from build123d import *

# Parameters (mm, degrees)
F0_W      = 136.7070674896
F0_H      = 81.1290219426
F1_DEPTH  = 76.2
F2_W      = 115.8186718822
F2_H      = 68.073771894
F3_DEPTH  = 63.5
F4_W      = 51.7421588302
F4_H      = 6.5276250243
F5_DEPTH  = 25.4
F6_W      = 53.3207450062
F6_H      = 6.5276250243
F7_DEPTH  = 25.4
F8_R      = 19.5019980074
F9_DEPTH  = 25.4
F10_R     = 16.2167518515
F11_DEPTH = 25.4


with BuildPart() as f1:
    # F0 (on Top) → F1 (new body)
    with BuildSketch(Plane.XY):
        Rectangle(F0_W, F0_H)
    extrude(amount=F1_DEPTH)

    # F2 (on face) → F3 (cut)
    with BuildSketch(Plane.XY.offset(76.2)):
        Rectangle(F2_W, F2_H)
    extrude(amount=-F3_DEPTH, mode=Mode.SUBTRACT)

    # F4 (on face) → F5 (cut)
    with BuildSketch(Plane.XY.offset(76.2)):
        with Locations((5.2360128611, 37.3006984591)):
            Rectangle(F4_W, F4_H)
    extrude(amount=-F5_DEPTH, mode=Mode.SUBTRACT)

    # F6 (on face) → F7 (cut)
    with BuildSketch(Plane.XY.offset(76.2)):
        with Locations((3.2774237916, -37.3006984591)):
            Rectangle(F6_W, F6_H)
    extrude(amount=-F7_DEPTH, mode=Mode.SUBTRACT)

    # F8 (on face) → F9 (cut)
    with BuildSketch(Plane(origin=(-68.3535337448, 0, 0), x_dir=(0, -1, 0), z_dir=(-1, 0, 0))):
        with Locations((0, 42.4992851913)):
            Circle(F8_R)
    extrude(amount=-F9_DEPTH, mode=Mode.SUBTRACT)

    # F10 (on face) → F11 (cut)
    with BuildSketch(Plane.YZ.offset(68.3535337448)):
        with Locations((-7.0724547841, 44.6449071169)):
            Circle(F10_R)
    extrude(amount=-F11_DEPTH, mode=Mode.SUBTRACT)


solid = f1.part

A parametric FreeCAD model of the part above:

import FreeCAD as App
import Part
import Sketcher
Q = App.Units.Quantity

doc = App.newDocument("Part")
params = doc.addObject("Spreadsheet::Sheet", "Params")
for row, (alias, value) in enumerate([
    ("pad1_length", "3 in"),
    ("pocket1_length", "2.5 in"),
    ("pocket2_length", "1 in"),
    ("pocket3_length", "1 in"),
    ("pocket4_length", "1 in"),
    ("pocket5_length", "1 in"),
], start=1):
    params.set(f"A{row}", alias)
    params.set(f"B{row}", "=" + value)
    params.setAlias(f"B{row}", alias)

body = doc.addObject("PartDesign::Body", "Body")

# Sketch on XY plane
sketch1 = doc.addObject("Sketcher::SketchObject", "Sketch")
body.addObject(sketch1)
sketch1.AttachmentSupport = (doc.XY_Plane, [""])
sketch1.MapMode = "FlatFace"
sketch1.addGeometry(Part.LineSegment(App.Vector(-68, 41, 0), App.Vector(-68, -41, 0)), False)
sketch1.addGeometry(Part.LineSegment(App.Vector(-68, -41, 0), App.Vector(68, -41, 0)), False)
sketch1.addGeometry(Part.LineSegment(App.Vector(68, -41, 0), App.Vector(68, 41, 0)), False)
sketch1.addGeometry(Part.LineSegment(App.Vector(68, 41, 0), App.Vector(-68, 41, 0)), False)
sketch1.addConstraint(Sketcher.Constraint("Coincident", 0, 2, 1, 1))
sketch1.addConstraint(Sketcher.Constraint("Coincident", 1, 2, 2, 1))
sketch1.addConstraint(Sketcher.Constraint("Coincident", 2, 2, 3, 1))
sketch1.addConstraint(Sketcher.Constraint("Coincident", 3, 2, 0, 1))
sketch1.addConstraint(Sketcher.Constraint("Vertical", 0))
sketch1.addConstraint(Sketcher.Constraint("Horizontal", 1))
sketch1.addConstraint(Sketcher.Constraint("Vertical", 2))
sketch1.addConstraint(Sketcher.Constraint("Horizontal", 3))
sketch1.addConstraint(Sketcher.Constraint("Symmetric", 0, 2, 2, 2, -1, 1))
sketch1.addConstraint(Sketcher.Constraint("DistanceY", 0, 2, 0, 1, Q("81.129022 mm")))
sketch1.addConstraint(Sketcher.Constraint("DistanceX", 1, 1, 1, 2, Q("136.707067 mm")))
pad1 = doc.addObject("PartDesign::Pad", "Pad")
body.addObject(pad1)
pad1.Profile = sketch1
pad1.setExpression("Length", "Params.pad1_length")

# Sketch on XY plane
sketch2 = doc.addObject("Sketcher::SketchObject", "Sketch001")
body.addObject(sketch2)
sketch2.AttachmentSupport = (doc.XY_Plane, [""])
sketch2.MapMode = "FlatFace"
sketch2.AttachmentOffset = App.Placement(App.Vector(0, 0, 3 * 25.4), App.Rotation())
sketch2.addGeometry(Part.LineSegment(App.Vector(-58, 34, 0), App.Vector(-58, -34, 0)), False)
sketch2.addGeometry(Part.LineSegment(App.Vector(-58, -34, 0), App.Vector(58, -34, 0)), False)
sketch2.addGeometry(Part.LineSegment(App.Vector(58, -34, 0), App.Vector(58, 34, 0)), False)
sketch2.addGeometry(Part.LineSegment(App.Vector(58, 34, 0), App.Vector(-58, 34, 0)), False)
sketch2.addConstraint(Sketcher.Constraint("Coincident", 0, 2, 1, 1))
sketch2.addConstraint(Sketcher.Constraint("Coincident", 1, 2, 2, 1))
sketch2.addConstraint(Sketcher.Constraint("Coincident", 2, 2, 3, 1))
sketch2.addConstraint(Sketcher.Constraint("Coincident", 3, 2, 0, 1))
sketch2.addConstraint(Sketcher.Constraint("Vertical", 0))
sketch2.addConstraint(Sketcher.Constraint("Horizontal", 1))
sketch2.addConstraint(Sketcher.Constraint("Vertical", 2))
sketch2.addConstraint(Sketcher.Constraint("Horizontal", 3))
sketch2.addConstraint(Sketcher.Constraint("Symmetric", 0, 2, 2, 2, -1, 1))
sketch2.addConstraint(Sketcher.Constraint("DistanceX", 1, 1, 1, 2, Q("115.818672 mm")))
sketch2.addConstraint(Sketcher.Constraint("DistanceY", 0, 2, 0, 1, Q("68.073772 mm")))
pocket1 = doc.addObject("PartDesign::Pocket", "Pocket")
body.addObject(pocket1)
pocket1.Profile = sketch2
pocket1.setExpression("Length", "Params.pocket1_length")

# Sketch on XY plane
sketch3 = doc.addObject("Sketcher::SketchObject", "Sketch002")
body.addObject(sketch3)
sketch3.AttachmentSupport = (doc.XY_Plane, [""])
sketch3.MapMode = "FlatFace"
sketch3.AttachmentOffset = App.Placement(App.Vector(0, 0, 3 * 25.4), App.Rotation())
sketch3.addGeometry(Part.LineSegment(App.Vector(-21, 41, 0), App.Vector(-21, 34, 0)), False)
sketch3.addGeometry(Part.LineSegment(App.Vector(-21, 34, 0), App.Vector(31, 34, 0)), False)
sketch3.addGeometry(Part.LineSegment(App.Vector(31, 34, 0), App.Vector(31, 41, 0)), False)
sketch3.addGeometry(Part.LineSegment(App.Vector(31, 41, 0), App.Vector(-21, 41, 0)), False)
sketch3.addConstraint(Sketcher.Constraint("Coincident", 0, 2, 1, 1))
sketch3.addConstraint(Sketcher.Constraint("Coincident", 1, 2, 2, 1))
sketch3.addConstraint(Sketcher.Constraint("Coincident", 2, 2, 3, 1))
sketch3.addConstraint(Sketcher.Constraint("Coincident", 3, 2, 0, 1))
sketch3.addConstraint(Sketcher.Constraint("Vertical", 0))
sketch3.addConstraint(Sketcher.Constraint("Horizontal", 1))
sketch3.addConstraint(Sketcher.Constraint("Vertical", 2))
sketch3.addConstraint(Sketcher.Constraint("Horizontal", 3))
sketch3.addConstraint(Sketcher.Constraint("DistanceX", 1, 1, 1, 2, Q("51.742159 mm")))
sketch3.addConstraint(Sketcher.Constraint("DistanceY", 0, 2, 0, 1, Q("6.527625 mm")))
sketch3.addConstraint(Sketcher.Constraint("DistanceY", -1, 1, 2, 2, Q("40.564511 mm")))
sketch3.addConstraint(Sketcher.Constraint("DistanceX", 0, 2, -1, 1, Q("20.635067 mm")))
pocket2 = doc.addObject("PartDesign::Pocket", "Pocket001")
body.addObject(pocket2)
pocket2.Profile = sketch3
pocket2.setExpression("Length", "Params.pocket2_length")

# Sketch on XY plane
sketch4 = doc.addObject("Sketcher::SketchObject", "Sketch003")
body.addObject(sketch4)
sketch4.AttachmentSupport = (doc.XY_Plane, [""])
sketch4.MapMode = "FlatFace"
sketch4.AttachmentOffset = App.Placement(App.Vector(0, 0, 3 * 25.4), App.Rotation())
sketch4.addGeometry(Part.LineSegment(App.Vector(-23, -34, 0), App.Vector(-23, -41, 0)), False)
sketch4.addGeometry(Part.LineSegment(App.Vector(-23, -41, 0), App.Vector(30, -41, 0)), False)
sketch4.addGeometry(Part.LineSegment(App.Vector(30, -41, 0), App.Vector(30, -34, 0)), False)
sketch4.addGeometry(Part.LineSegment(App.Vector(30, -34, 0), App.Vector(-23, -34, 0)), False)
sketch4.addConstraint(Sketcher.Constraint("Coincident", 0, 2, 1, 1))
sketch4.addConstraint(Sketcher.Constraint("Coincident", 1, 2, 2, 1))
sketch4.addConstraint(Sketcher.Constraint("Coincident", 2, 2, 3, 1))
sketch4.addConstraint(Sketcher.Constraint("Coincident", 3, 2, 0, 1))
sketch4.addConstraint(Sketcher.Constraint("Vertical", 0))
sketch4.addConstraint(Sketcher.Constraint("Horizontal", 1))
sketch4.addConstraint(Sketcher.Constraint("Vertical", 2))
sketch4.addConstraint(Sketcher.Constraint("Horizontal", 3))
sketch4.addConstraint(Sketcher.Constraint("DistanceX", 1, 1, 1, 2, Q("53.320745 mm")))
sketch4.addConstraint(Sketcher.Constraint("DistanceY", 0, 2, 0, 1, Q("6.527625 mm")))
sketch4.addConstraint(Sketcher.Constraint("DistanceX", 0, 2, -1, 1, Q("23.382949 mm")))
sketch4.addConstraint(Sketcher.Constraint("DistanceY", 0, 2, -1, 1, Q("40.564511 mm")))
pocket3 = doc.addObject("PartDesign::Pocket", "Pocket002")
body.addObject(pocket3)
pocket3.Profile = sketch4
pocket3.setExpression("Length", "Params.pocket3_length")

# Sketch on YZ plane
sketch5 = doc.addObject("Sketcher::SketchObject", "Sketch004")
body.addObject(sketch5)
sketch5.AttachmentSupport = (doc.YZ_Plane, [""])
sketch5.MapMode = "FlatFace"
sketch5.AttachmentOffset = App.Placement(App.Vector(0, 0, -68.353534), App.Rotation())
sketch5.addGeometry(Part.Circle(App.Vector(0, 42, 0), App.Vector(0, 0, 1), 20), False)
sketch5.addConstraint(Sketcher.Constraint("PointOnObject", 0, 3, -2))
sketch5.addConstraint(Sketcher.Constraint("Diameter", 0, Q("39.003996 mm")))
sketch5.addConstraint(Sketcher.Constraint("DistanceY", -1, 1, 0, 3, Q("42.499285 mm")))
pocket4 = doc.addObject("PartDesign::Pocket", "Pocket003")
body.addObject(pocket4)
pocket4.Profile = sketch5
pocket4.setExpression("Length", "Params.pocket4_length")
pocket4.Reversed = True

# Sketch on YZ plane
sketch6 = doc.addObject("Sketcher::SketchObject", "Sketch005")
body.addObject(sketch6)
sketch6.AttachmentSupport = (doc.YZ_Plane, [""])
sketch6.MapMode = "FlatFace"
sketch6.AttachmentOffset = App.Placement(App.Vector(0, 0, 68.353534), App.Rotation())
sketch6.addGeometry(Part.Circle(App.Vector(-7, 45, 0), App.Vector(0, 0, 1), 16), False)
sketch6.addConstraint(Sketcher.Constraint("Diameter", 0, Q("32.433504 mm")))
sketch6.addConstraint(Sketcher.Constraint("DistanceX", 0, 3, -1, 1, Q("7.072455 mm")))
sketch6.addConstraint(Sketcher.Constraint("DistanceY", -1, 1, 0, 3, Q("44.644907 mm")))
pocket5 = doc.addObject("PartDesign::Pocket", "Pocket004")
body.addObject(pocket5)
pocket5.Profile = sketch6
pocket5.setExpression("Length", "Params.pocket5_length")

doc.recompute()
